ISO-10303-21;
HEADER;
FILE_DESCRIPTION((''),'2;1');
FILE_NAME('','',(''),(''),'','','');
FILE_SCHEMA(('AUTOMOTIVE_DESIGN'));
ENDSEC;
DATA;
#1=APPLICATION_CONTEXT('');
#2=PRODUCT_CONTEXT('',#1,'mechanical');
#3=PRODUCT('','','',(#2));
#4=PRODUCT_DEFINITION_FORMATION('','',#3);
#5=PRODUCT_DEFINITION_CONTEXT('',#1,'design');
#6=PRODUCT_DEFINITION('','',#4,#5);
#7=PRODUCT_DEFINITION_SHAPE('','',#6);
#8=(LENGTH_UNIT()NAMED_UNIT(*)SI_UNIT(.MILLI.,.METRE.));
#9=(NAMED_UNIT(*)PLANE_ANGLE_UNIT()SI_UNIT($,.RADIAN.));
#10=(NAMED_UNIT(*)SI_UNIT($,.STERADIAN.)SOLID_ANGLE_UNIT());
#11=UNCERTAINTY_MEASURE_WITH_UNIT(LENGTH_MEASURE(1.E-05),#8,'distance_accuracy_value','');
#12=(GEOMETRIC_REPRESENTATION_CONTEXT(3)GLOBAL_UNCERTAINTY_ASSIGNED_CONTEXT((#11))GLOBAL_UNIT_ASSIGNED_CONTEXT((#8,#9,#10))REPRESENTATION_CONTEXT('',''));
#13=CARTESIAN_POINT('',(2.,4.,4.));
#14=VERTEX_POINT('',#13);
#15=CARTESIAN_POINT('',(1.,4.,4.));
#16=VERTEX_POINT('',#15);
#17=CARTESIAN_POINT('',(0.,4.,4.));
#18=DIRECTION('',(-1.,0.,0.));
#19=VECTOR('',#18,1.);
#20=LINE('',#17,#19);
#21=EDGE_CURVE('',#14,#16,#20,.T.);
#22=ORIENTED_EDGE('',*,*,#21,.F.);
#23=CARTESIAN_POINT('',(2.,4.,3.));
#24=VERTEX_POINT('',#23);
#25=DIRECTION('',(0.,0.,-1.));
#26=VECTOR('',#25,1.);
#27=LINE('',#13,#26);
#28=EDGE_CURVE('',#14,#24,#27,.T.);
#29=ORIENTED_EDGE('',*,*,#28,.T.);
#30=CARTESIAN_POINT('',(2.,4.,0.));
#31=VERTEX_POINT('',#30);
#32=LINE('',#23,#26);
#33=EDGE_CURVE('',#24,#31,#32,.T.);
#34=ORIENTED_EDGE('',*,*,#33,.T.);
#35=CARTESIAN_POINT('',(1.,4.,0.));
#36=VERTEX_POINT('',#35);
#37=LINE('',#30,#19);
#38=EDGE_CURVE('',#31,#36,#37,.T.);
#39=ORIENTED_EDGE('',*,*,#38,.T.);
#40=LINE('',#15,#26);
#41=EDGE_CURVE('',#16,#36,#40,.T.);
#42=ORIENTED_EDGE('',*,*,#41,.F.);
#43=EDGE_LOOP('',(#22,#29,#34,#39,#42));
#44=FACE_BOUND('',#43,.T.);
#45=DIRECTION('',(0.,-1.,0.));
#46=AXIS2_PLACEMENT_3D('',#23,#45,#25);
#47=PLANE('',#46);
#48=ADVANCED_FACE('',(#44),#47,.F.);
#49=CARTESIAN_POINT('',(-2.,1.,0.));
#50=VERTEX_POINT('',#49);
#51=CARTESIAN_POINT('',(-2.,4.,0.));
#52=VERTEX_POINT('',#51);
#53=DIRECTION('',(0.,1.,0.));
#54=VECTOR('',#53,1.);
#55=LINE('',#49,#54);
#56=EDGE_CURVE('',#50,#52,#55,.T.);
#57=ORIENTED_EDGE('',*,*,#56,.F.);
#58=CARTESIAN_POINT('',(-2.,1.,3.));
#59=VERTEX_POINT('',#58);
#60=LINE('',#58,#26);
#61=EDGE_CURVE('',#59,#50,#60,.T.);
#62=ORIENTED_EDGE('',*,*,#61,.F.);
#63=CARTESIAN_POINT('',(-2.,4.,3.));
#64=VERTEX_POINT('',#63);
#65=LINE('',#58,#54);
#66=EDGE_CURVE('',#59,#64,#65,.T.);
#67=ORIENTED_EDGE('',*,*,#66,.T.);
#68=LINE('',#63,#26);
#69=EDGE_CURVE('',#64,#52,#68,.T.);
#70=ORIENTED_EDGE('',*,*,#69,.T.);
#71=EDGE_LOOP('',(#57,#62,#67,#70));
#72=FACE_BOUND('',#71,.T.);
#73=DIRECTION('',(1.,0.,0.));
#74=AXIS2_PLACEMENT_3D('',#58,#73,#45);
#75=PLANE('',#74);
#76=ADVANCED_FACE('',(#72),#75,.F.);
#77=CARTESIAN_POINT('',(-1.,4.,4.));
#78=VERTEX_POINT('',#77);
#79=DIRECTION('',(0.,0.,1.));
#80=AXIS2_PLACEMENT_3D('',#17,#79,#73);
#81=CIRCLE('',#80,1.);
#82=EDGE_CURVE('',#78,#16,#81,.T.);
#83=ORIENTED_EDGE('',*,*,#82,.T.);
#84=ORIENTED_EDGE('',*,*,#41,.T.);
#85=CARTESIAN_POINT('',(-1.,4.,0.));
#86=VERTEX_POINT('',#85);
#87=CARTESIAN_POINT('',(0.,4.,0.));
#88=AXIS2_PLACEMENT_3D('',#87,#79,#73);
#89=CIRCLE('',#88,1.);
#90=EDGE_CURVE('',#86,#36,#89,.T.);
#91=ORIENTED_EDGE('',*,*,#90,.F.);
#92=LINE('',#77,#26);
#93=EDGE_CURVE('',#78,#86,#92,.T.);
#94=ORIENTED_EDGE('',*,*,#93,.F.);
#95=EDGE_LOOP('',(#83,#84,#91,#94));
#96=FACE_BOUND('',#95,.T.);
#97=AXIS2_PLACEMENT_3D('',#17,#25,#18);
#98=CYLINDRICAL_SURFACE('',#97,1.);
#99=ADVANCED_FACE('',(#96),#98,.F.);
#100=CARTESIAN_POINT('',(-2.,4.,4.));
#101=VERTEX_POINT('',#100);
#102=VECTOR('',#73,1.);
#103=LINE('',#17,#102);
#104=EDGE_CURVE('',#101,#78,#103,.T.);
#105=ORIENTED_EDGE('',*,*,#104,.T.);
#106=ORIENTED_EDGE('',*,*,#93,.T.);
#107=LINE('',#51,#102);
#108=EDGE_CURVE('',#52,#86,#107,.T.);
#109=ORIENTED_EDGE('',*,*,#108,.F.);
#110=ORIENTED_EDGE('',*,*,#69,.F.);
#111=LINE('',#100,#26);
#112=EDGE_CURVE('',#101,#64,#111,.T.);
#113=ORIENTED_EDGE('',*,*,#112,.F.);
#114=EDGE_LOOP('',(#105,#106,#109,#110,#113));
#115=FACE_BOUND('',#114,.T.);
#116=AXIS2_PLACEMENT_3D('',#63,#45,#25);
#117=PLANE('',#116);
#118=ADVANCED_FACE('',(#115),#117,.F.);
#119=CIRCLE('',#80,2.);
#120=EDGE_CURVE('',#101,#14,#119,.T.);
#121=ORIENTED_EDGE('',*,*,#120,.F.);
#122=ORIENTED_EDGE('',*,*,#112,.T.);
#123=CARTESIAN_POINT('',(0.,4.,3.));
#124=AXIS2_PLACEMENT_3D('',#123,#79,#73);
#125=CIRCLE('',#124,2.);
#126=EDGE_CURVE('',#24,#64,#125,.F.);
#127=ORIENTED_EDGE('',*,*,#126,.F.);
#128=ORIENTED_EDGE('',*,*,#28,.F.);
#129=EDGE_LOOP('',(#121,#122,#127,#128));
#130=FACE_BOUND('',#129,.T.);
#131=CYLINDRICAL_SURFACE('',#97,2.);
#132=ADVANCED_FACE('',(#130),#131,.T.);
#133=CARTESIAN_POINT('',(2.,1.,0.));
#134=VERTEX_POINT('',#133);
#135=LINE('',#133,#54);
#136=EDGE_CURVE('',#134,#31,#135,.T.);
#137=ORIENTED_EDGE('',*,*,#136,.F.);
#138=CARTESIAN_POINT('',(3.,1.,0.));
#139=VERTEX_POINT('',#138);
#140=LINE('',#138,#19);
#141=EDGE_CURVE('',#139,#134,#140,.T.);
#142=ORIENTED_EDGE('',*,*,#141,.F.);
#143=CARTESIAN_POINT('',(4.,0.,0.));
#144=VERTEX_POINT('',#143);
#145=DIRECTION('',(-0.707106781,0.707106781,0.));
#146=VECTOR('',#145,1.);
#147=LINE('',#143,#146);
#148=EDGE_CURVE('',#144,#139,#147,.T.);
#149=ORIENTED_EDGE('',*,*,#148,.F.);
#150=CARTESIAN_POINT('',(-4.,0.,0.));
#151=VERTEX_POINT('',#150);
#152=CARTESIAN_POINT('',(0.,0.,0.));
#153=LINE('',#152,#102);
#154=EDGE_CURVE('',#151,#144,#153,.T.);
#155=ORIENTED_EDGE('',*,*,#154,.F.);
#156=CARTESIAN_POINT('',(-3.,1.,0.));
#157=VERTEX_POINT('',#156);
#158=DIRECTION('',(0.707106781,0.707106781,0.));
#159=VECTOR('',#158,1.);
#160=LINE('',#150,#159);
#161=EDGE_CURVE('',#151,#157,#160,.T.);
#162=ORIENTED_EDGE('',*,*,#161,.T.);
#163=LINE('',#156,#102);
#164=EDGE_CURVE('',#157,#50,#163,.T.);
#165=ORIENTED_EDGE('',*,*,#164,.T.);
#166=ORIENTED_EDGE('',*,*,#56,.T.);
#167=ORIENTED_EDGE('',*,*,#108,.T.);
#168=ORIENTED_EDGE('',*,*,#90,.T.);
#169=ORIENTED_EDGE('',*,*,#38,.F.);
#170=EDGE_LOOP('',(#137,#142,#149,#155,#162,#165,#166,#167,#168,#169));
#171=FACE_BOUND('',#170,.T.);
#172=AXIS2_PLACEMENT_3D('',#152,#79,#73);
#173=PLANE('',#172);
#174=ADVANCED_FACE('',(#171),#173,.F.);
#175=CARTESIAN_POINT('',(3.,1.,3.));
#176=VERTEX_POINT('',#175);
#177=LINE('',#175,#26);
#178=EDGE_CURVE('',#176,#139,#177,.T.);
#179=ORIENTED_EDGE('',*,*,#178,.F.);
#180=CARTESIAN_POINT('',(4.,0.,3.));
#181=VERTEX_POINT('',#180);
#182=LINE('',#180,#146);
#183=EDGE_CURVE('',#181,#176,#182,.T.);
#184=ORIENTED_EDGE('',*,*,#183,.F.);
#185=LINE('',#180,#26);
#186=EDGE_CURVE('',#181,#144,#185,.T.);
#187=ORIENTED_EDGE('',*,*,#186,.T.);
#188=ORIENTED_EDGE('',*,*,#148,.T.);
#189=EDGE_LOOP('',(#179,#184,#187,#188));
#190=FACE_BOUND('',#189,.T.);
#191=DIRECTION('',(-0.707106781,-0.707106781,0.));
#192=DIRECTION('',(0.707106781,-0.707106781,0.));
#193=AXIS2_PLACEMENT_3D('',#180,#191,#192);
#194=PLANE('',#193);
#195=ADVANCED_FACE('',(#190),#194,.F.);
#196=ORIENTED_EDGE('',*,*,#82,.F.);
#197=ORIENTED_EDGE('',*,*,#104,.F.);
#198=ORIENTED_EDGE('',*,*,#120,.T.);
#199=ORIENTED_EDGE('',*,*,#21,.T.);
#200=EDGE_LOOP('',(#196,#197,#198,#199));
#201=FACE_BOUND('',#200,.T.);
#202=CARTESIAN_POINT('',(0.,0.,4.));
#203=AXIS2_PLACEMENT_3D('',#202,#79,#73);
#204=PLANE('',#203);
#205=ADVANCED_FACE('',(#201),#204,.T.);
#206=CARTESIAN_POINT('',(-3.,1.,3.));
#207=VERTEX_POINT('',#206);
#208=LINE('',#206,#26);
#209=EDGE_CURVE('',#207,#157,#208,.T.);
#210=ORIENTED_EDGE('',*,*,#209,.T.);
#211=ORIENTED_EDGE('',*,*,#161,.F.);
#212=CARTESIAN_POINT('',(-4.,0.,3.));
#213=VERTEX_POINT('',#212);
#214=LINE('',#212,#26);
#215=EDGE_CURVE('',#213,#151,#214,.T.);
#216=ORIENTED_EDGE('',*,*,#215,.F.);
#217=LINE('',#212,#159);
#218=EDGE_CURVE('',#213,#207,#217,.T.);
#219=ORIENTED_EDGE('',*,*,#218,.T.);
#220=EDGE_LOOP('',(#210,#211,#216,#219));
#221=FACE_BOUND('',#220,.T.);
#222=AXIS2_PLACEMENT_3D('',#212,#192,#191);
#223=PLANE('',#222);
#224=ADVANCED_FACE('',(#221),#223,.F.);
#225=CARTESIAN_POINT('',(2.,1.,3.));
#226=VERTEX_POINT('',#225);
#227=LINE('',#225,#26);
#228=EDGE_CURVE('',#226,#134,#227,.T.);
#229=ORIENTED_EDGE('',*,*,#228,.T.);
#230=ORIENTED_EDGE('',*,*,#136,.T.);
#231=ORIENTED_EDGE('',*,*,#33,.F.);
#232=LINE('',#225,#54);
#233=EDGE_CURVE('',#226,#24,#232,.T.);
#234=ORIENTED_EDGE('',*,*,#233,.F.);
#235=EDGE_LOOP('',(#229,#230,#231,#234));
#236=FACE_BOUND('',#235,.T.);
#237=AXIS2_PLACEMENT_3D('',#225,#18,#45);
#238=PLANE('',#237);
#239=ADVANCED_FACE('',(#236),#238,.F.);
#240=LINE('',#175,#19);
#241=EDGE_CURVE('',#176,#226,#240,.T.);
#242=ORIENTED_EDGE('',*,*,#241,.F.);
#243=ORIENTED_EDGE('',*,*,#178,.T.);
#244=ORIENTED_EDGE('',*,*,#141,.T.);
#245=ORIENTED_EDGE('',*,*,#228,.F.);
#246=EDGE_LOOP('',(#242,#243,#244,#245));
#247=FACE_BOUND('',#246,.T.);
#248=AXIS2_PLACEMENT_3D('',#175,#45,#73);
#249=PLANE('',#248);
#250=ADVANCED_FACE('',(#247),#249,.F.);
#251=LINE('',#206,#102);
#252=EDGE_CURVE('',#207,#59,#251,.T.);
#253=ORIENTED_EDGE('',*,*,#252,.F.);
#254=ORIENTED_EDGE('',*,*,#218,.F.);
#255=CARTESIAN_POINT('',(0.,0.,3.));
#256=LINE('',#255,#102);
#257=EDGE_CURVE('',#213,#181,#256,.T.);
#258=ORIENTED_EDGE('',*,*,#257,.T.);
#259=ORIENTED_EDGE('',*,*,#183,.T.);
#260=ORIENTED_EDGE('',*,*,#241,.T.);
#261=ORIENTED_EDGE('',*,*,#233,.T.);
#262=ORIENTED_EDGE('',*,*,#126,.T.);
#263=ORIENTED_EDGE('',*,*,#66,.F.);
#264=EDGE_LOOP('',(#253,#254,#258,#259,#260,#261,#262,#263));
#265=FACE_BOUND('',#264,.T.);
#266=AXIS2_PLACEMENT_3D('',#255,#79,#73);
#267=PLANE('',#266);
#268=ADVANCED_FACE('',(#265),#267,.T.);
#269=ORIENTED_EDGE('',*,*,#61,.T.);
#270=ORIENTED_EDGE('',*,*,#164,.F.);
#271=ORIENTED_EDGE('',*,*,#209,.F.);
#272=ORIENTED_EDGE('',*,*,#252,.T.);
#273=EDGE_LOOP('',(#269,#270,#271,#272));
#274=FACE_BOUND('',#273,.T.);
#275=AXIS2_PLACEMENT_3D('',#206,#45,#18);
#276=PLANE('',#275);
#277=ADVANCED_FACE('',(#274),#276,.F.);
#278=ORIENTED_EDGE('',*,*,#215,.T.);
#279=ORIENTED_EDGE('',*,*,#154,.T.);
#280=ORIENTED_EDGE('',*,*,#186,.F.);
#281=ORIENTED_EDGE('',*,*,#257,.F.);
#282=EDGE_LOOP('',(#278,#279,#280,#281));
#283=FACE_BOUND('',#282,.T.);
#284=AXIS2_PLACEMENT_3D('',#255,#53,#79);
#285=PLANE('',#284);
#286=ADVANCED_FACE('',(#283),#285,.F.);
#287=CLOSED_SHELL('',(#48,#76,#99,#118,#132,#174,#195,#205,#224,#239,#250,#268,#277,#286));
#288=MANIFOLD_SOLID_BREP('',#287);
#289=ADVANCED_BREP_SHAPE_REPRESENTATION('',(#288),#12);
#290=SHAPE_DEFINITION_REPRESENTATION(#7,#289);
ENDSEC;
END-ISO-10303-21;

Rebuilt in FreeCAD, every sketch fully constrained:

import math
import FreeCAD as App
import Part
import Sketcher
from FreeCAD import Vector


def add_polygon(sketch, points):
    """Adds a closed chain of lines whose ends are joined by coincident constraints."""
    first, n = sketch.GeometryCount, len(points)
    for a, b in zip(points, points[1:] + points[:1]):
        sketch.addGeometry(Part.LineSegment(App.Vector(*a, 0), App.Vector(*b, 0)), False)
    for i in range(n):
        sketch.addConstraint(Sketcher.Constraint("Coincident", first + i, 2, first + (i + 1) % n, 1))

doc = App.newDocument("Part")
body = doc.addObject("PartDesign::Body", "Body")

sketch1 = body.newObject("Sketcher::SketchObject", "Sketch")
sketch1.AttachmentSupport = (doc.getObject("XY_Plane"), [""])
sketch1.MapMode = "FlatFace"
add_polygon(sketch1, [(0, 0), (4, 0), (3, 1), (2, 1), (2, 4), (0, 4)])
sketch1.addConstraint(Sketcher.Constraint("Horizontal", 0))
sketch1.addConstraint(Sketcher.Constraint("Horizontal", 2))
sketch1.addConstraint(Sketcher.Constraint("Vertical", 3))
sketch1.addConstraint(Sketcher.Constraint("Horizontal", 4))
sketch1.addConstraint(Sketcher.Constraint("Vertical", 5))
sketch1.addConstraint(Sketcher.Constraint("Coincident", 5, 2, -1, 1))
sketch1.addConstraint(Sketcher.Constraint("Equal", 0, 5))
sketch1.addConstraint(Sketcher.Constraint("DistanceX", 0, 1, 0, 2, 4.0))
sketch1.addConstraint(Sketcher.Constraint("DistanceX", 2, 2, 2, 1, 1.0))
sketch1.addConstraint(Sketcher.Constraint("DistanceX", 4, 2, 4, 1, 2.0))
sketch1.addConstraint(Sketcher.Constraint("DistanceY", 3, 1, 3, 2, 3.0))
pad1 = body.newObject("PartDesign::Pad", "Pad")
pad1.Profile = sketch1
pad1.Length = 3

sketch2 = body.newObject("Sketcher::SketchObject", "Sketch001")
sketch2.AttachmentSupport = (doc.getObject("XY_Plane"), [""])
sketch2.MapMode = "FlatFace"
sketch2.addGeometry(Part.ArcOfCircle(Part.Circle(Vector(0, 4, 0), Vector(0, 0, 1), 2), math.radians(-90), math.radians(0)), False)
sketch2.addGeometry(Part.LineSegment(Vector(2, 4, 0), Vector(1, 4, 0)), False)
sketch2.addGeometry(Part.ArcOfCircle(Part.Circle(Vector(0, 4, 0), Vector(0, 0, 1), 1), math.radians(-90), math.radians(0)), False)
sketch2.addGeometry(Part.LineSegment(Vector(0, 3, 0), Vector(0, 2, 0)), False)
sketch2.addConstraint(Sketcher.Constraint("Coincident", 0, 2, 1, 1))
sketch2.addConstraint(Sketcher.Constraint("Coincident", 1, 2, 2, 2))
sketch2.addConstraint(Sketcher.Constraint("Coincident", 2, 1, 3, 1))
sketch2.addConstraint(Sketcher.Constraint("Coincident", 3, 2, 0, 1))
sketch2.addConstraint(Sketcher.Constraint("Horizontal", 1))
sketch2.addConstraint(Sketcher.Constraint("Vertical", 3))
sketch2.addConstraint(Sketcher.Constraint("Coincident", 2, 3, 0, 3))
sketch2.addConstraint(Sketcher.Constraint("PointOnObject", 0, 3, -2))
sketch2.addConstraint(Sketcher.Constraint("PointOnObject", 2, 1, -2))
sketch2.addConstraint(Sketcher.Constraint("Horizontal", 2, 3, 0, 2))
sketch2.addConstraint(Sketcher.Constraint("Radius", 0, 2.0))
sketch2.addConstraint(Sketcher.Constraint("Radius", 2, 1.0))
sketch2.addConstraint(Sketcher.Constraint("DistanceY", -1, 1, 0, 3, 4.0))
pad2 = body.newObject("PartDesign::Pad", "Pad001")
pad2.Profile = sketch2
pad2.Length = 4

sketch3 = body.newObject("Sketcher::SketchObject", "Sketch002")
sketch3.AttachmentSupport = (doc.getObject("XY_Plane"), [""])
sketch3.MapMode = "FlatFace"
sketch3.addGeometry(Part.ArcOfCircle(Part.Circle(Vector(0, 4, 0), Vector(0, 0, 1), 1), math.radians(-90), math.radians(0)), False)
sketch3.addGeometry(Part.LineSegment(Vector(1, 4, 0), Vector(0, 4, 0)), False)
sketch3.addGeometry(Part.LineSegment(Vector(0, 4, 0), Vector(0, 3, 0)), False)
sketch3.addConstraint(Sketcher.Constraint("Coincident", 0, 2, 1, 1))
sketch3.addConstraint(Sketcher.Constraint("Coincident", 1, 2, 2, 1))
sketch3.addConstraint(Sketcher.Constraint("Coincident", 2, 2, 0, 1))
sketch3.addConstraint(Sketcher.Constraint("Horizontal", 1))
sketch3.addConstraint(Sketcher.Constraint("Vertical", 2))
sketch3.addConstraint(Sketcher.Constraint("Coincident", 1, 2, 0, 3))
sketch3.addConstraint(Sketcher.Constraint("PointOnObject", 0, 3, -2))
sketch3.addConstraint(Sketcher.Constraint("Radius", 0, 1.0))
sketch3.addConstraint(Sketcher.Constraint("DistanceY", -1, 1, 0, 3, 4.0))
pocket1 = body.newObject("PartDesign::Pocket", "Pocket")
pocket1.Profile = sketch3
pocket1.Length = 4
pocket1.Reversed = True
doc.recompute()

mirrored = body.newObject("PartDesign::Mirrored", "Mirrored")
mirrored.Originals = [pad1, pad2, pocket1]
mirrored.MirrorPlane = (doc.getObject("YZ_Plane"), [""])
body.Tip = mirrored

doc.recompute()
